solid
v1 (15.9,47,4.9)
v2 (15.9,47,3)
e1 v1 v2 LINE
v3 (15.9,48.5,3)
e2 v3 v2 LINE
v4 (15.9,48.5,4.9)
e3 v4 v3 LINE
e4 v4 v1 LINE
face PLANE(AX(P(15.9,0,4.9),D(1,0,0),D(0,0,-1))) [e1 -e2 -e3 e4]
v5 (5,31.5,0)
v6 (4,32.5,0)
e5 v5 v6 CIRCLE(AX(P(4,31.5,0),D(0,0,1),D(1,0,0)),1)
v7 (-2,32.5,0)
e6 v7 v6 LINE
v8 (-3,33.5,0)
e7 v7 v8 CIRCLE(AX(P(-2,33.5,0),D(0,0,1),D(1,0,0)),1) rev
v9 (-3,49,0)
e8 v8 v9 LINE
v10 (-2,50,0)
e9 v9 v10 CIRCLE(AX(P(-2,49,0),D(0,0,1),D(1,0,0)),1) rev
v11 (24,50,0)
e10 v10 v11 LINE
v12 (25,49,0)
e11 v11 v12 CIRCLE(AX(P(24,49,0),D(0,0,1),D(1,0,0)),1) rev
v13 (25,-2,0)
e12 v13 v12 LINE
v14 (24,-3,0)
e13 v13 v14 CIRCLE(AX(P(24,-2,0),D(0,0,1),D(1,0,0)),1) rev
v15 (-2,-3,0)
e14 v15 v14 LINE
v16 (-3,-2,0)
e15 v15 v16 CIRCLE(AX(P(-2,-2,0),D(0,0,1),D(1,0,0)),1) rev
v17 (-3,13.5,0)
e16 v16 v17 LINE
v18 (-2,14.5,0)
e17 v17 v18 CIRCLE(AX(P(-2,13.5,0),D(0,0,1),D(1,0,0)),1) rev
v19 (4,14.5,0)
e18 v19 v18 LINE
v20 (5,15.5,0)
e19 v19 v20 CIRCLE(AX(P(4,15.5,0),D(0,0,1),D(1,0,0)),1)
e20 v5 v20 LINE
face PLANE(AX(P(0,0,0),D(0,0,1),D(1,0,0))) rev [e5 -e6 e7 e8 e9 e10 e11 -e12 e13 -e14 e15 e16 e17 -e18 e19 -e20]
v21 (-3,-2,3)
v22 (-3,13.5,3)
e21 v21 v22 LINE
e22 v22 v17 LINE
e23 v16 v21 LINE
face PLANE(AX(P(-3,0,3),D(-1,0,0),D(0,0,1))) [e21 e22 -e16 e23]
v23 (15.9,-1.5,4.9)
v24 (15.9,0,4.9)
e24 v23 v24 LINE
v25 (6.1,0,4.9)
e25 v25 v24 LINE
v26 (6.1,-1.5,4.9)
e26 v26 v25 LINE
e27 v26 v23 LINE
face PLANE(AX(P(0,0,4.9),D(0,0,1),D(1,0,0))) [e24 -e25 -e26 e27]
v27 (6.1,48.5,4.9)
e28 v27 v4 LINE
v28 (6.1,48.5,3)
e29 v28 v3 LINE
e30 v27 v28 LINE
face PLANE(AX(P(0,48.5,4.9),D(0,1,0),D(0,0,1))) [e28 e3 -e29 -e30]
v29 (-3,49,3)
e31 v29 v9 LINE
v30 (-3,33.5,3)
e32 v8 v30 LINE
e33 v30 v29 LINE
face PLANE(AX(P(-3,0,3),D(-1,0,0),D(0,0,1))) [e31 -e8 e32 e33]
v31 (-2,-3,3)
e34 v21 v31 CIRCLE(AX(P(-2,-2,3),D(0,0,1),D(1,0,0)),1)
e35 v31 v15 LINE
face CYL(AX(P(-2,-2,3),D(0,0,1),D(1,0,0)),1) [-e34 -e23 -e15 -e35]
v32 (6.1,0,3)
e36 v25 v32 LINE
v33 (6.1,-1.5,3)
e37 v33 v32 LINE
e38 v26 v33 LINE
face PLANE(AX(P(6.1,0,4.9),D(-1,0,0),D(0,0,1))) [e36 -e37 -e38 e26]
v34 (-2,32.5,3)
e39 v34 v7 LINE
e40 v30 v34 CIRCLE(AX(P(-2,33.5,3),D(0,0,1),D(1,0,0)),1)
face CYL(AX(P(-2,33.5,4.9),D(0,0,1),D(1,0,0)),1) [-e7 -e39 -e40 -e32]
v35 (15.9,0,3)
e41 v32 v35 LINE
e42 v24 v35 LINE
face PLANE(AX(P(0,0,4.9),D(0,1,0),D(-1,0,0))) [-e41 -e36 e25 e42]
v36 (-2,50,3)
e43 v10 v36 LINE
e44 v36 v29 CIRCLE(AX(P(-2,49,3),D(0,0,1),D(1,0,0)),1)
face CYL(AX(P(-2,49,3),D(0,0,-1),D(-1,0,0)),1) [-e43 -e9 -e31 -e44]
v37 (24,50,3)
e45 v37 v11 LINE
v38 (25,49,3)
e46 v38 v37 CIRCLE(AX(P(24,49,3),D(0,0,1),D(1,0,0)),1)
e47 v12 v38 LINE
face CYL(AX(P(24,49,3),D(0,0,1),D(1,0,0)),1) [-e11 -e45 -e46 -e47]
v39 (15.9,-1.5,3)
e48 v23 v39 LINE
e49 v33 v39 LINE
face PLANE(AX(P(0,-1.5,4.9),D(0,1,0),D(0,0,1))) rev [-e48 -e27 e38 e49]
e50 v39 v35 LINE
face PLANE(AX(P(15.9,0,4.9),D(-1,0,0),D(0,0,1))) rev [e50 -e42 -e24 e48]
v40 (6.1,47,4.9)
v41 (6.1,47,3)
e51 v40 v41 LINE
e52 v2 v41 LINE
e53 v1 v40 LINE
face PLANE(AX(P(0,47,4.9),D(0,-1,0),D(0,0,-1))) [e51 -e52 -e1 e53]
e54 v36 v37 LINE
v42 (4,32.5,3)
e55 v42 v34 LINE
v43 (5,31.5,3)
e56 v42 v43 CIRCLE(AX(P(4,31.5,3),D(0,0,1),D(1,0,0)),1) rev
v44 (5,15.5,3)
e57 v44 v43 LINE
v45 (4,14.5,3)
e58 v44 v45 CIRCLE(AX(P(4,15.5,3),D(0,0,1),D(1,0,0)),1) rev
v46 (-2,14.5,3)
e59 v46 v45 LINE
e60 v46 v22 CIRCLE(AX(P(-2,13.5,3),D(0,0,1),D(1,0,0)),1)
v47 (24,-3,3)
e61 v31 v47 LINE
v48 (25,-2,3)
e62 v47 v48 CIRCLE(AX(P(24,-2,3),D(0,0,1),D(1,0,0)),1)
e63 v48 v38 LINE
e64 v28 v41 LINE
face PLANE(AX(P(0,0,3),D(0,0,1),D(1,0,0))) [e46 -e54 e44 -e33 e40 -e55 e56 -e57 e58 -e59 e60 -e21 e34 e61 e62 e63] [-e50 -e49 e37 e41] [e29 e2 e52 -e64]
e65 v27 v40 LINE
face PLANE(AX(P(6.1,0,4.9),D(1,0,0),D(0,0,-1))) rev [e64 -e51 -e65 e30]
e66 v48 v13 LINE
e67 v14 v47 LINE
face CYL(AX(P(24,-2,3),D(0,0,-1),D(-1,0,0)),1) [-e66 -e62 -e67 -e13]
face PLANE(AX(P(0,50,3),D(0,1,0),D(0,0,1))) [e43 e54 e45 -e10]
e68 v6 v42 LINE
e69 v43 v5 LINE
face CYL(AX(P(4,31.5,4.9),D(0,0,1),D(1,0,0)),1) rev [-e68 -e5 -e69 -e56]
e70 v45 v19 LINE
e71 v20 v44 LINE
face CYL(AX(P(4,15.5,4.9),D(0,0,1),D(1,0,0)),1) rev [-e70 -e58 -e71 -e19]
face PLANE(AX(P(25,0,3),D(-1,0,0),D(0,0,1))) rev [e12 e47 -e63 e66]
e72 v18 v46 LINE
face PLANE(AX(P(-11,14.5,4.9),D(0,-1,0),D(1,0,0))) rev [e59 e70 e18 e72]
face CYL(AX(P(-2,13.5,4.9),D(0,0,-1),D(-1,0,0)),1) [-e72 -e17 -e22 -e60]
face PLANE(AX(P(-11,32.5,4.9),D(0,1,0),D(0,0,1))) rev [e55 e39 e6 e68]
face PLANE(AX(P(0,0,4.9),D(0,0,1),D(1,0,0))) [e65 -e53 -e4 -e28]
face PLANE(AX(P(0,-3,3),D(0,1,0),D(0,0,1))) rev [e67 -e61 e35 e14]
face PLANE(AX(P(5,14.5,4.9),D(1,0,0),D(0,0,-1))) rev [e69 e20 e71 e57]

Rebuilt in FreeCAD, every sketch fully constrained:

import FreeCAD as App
import Part
import Sketcher

V = App.Vector


def edges_at(feature, points):
    """Names of the edges that pass closest to the given points."""
    edges = feature.Shape.Edges
    near = lambda p: min(range(len(edges)), key=lambda i: edges[i].distToShape(Part.Vertex(*p))[0])
    return sorted({f"Edge{near(p) + 1}" for p in points})


def add_polygon(sketch, points):
    """Adds a closed chain of lines whose ends are joined by coincident constraints."""
    first, n = sketch.GeometryCount, len(points)
    for a, b in zip(points, points[1:] + points[:1]):
        sketch.addGeometry(Part.LineSegment(App.Vector(*a, 0), App.Vector(*b, 0)), False)
    for i in range(n):
        sketch.addConstraint(Sketcher.Constraint("Coincident", first + i, 2, first + (i + 1) % n, 1))

doc = App.newDocument("Part")
body = doc.addObject("PartDesign::Body", "Body")

# Sketch on XY plane
sketch1 = body.newObject("Sketcher::SketchObject", "Sketch")
sketch1.AttachmentSupport = (doc.getObject("XY_Plane"), [""])
sketch1.MapMode = "FlatFace"
add_polygon(sketch1, [(-3, 50), (-3, -3), (25, -3), (25, 50)])  # lines 0-3
sketch1.addConstraint(Sketcher.Constraint("Vertical", 0))
sketch1.addConstraint(Sketcher.Constraint("Horizontal", 1))
sketch1.addConstraint(Sketcher.Constraint("Vertical", 2))
sketch1.addConstraint(Sketcher.Constraint("Horizontal", 3))
sketch1.addConstraint(Sketcher.Constraint("DistanceX", 1, 1, 1, 2, 28.0))
sketch1.addConstraint(Sketcher.Constraint("DistanceY", 0, 2, 0, 1, 53.0))
sketch1.addConstraint(Sketcher.Constraint("DistanceX", 0, 2, -1, 1, 3.0))
sketch1.addConstraint(Sketcher.Constraint("DistanceY", 0, 2, -1, 1, 3.0))
pad1 = body.newObject("PartDesign::Pad", "Pad")
pad1.Profile = sketch1
pad1.Length = 3

# Sketch on XY plane
sketch2 = body.newObject("Sketcher::SketchObject", "Sketch001")
sketch2.AttachmentSupport = (doc.getObject("XY_Plane"), [""])
sketch2.MapMode = "FlatFace"
sketch2.AttachmentOffset = App.Placement(V(0, 0, 3), App.Rotation())
add_polygon(sketch2, [(6.1, 48.5), (6.1, 47), (15.9, 47), (15.9, 48.5)])  # lines 0-3
add_polygon(sketch2, [(6.1, 0), (6.1, -1.5), (15.9, -1.5), (15.9, 0)])  # lines 4-7
sketch2.addConstraint(Sketcher.Constraint("Vertical", 0))
sketch2.addConstraint(Sketcher.Constraint("Horizontal", 1))
sketch2.addConstraint(Sketcher.Constraint("Vertical", 2))
sketch2.addConstraint(Sketcher.Constraint("Horizontal", 3))
sketch2.addConstraint(Sketcher.Constraint("Vertical", 4))
sketch2.addConstraint(Sketcher.Constraint("Horizontal", 5))
sketch2.addConstraint(Sketcher.Constraint("Vertical", 6))
sketch2.addConstraint(Sketcher.Constraint("Horizontal", 7))
sketch2.addConstraint(Sketcher.Constraint("PointOnObject", 6, 2, -1))
sketch2.addConstraint(Sketcher.Constraint("Vertical", 3, 2, 4, 2))
sketch2.addConstraint(Sketcher.Constraint("Vertical", 2, 2, 5, 2))
sketch2.addConstraint(Sketcher.Constraint("Equal", 2, 4))
sketch2.addConstraint(Sketcher.Constraint("DistanceX", 1, 1, 1, 2, 9.8))
sketch2.addConstraint(Sketcher.Constraint("DistanceY", 0, 2, 0, 1, 1.5))
sketch2.addConstraint(Sketcher.Constraint("DistanceY", -1, 1, 0, 2, 47.0))
sketch2.addConstraint(Sketcher.Constraint("DistanceX", -1, 1, 0, 2, 6.1))
pad2 = body.newObject("PartDesign::Pad", "Pad001")
pad2.Profile = sketch2
pad2.Length = 1.9

# Sketch on XY plane
sketch3 = body.newObject("Sketcher::SketchObject", "Sketch002")
sketch3.AttachmentSupport = (doc.getObject("XY_Plane"), [""])
sketch3.MapMode = "FlatFace"
add_polygon(sketch3, [(5, 32), (5, 14), (-11, 14), (-11, 32)])  # lines 0-3
sketch3.addConstraint(Sketcher.Constraint("Vertical", 0))
sketch3.addConstraint(Sketcher.Constraint("Horizontal", 1))
sketch3.addConstraint(Sketcher.Constraint("Vertical", 2))
sketch3.addConstraint(Sketcher.Constraint("Horizontal", 3))
sketch3.addConstraint(Sketcher.Constraint("DistanceX", 1, 2, 1, 1, 16.0))
sketch3.addConstraint(Sketcher.Constraint("DistanceY", 0, 2, 0, 1, 18.0))
sketch3.addConstraint(Sketcher.Constraint("DistanceX", -1, 1, 0, 2, 5.0))
sketch3.addConstraint(Sketcher.Constraint("DistanceY", -1, 1, 0, 2, 14.5))
pocket1 = body.newObject("PartDesign::Pocket", "Pocket")
pocket1.Profile = sketch3
pocket1.Type = "ThroughAll"
pocket1.Reversed = True
doc.recompute()

fillet = body.newObject("PartDesign::Fillet", "Fillet")
fillet.Base = (pocket1, edges_at(pocket1, [
    (-3, 14.5, 1.5),
    (-3, 32.5, 1.5),
    (5, 14.5, 1.5),
    (5, 32.5, 1.5),
    (-3, -3, 1.5),
    (-3, 50, 1.5),
    (25, 50, 1.5),
    (25, -3, 1.5),
]))
fillet.Radius = 1

doc.recompute()
